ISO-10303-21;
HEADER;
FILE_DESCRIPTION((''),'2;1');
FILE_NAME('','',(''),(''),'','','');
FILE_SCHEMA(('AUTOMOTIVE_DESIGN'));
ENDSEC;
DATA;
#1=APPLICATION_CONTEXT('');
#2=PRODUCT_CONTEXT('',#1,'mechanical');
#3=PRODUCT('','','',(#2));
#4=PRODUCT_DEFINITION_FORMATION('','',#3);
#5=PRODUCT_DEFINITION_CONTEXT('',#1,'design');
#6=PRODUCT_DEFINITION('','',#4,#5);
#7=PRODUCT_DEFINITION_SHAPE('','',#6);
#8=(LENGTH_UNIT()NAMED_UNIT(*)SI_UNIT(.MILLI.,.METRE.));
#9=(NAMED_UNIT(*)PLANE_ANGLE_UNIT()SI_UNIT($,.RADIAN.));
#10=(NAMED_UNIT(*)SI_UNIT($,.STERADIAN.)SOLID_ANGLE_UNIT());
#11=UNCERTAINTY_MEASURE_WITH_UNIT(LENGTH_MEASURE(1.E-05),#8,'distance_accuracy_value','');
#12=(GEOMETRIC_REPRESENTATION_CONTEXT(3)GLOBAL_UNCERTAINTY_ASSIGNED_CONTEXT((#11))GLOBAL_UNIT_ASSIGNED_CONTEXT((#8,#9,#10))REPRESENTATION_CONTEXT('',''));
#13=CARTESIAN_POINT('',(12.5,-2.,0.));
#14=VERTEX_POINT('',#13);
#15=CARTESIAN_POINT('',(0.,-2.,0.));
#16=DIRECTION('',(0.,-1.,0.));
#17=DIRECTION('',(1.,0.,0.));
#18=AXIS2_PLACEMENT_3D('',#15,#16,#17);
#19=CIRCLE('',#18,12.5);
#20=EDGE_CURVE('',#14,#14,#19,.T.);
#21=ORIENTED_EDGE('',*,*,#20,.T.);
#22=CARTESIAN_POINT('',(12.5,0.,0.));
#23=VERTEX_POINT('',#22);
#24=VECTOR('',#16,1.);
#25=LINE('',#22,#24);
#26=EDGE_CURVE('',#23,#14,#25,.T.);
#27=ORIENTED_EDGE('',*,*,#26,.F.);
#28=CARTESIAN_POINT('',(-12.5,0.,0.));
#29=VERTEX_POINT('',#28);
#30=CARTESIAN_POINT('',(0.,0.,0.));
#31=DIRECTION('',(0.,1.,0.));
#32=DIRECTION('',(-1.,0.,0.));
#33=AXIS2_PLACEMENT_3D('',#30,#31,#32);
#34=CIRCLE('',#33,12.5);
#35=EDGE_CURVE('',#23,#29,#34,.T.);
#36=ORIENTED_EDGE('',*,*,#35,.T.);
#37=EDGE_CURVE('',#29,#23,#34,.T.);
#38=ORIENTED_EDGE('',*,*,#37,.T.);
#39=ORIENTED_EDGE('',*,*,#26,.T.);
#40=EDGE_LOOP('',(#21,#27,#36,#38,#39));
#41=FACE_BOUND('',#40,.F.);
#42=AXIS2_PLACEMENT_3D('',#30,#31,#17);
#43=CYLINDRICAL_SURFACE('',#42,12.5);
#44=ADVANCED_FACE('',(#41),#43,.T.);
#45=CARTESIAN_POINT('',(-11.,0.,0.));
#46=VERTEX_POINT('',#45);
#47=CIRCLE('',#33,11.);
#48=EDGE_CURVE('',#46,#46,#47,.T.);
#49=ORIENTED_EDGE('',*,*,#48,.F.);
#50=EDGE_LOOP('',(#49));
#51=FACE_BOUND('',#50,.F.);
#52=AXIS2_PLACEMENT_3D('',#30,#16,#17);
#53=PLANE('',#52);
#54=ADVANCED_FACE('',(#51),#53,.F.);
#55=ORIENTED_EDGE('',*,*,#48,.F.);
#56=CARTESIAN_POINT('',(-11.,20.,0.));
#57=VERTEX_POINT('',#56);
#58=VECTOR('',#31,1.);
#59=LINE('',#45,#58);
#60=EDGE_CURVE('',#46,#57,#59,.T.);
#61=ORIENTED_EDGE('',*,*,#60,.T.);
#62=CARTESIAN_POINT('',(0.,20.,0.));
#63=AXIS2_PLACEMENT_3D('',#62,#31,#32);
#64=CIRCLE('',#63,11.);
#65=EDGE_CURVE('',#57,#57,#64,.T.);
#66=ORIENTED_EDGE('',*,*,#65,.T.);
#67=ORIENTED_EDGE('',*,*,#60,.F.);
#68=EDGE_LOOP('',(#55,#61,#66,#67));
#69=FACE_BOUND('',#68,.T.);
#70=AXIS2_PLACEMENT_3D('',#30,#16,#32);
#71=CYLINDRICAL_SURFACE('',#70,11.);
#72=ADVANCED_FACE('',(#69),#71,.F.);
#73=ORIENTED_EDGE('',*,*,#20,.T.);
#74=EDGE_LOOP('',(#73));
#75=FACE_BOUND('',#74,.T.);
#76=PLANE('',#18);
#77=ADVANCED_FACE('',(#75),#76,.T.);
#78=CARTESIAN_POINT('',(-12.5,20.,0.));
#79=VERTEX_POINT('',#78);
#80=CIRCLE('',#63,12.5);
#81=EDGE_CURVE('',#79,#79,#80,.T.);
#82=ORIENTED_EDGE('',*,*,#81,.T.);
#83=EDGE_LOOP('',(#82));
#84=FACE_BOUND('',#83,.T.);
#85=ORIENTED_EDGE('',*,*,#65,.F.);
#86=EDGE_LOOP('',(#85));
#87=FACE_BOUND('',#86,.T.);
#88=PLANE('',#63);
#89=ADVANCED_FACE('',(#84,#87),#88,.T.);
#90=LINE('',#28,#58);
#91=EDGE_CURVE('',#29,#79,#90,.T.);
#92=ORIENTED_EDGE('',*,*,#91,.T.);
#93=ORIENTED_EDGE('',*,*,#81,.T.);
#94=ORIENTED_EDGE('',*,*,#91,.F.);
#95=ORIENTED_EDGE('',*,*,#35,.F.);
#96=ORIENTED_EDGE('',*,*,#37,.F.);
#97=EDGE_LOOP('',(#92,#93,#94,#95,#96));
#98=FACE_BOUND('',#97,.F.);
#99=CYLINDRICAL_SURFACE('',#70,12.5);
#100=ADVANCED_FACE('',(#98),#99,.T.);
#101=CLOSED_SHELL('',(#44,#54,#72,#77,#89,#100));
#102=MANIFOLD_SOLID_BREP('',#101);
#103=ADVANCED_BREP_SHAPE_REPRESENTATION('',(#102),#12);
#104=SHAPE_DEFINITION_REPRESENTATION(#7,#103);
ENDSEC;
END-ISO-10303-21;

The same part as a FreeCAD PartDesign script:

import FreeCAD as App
import Part
import Sketcher
from FreeCAD import Vector
Q = App.Units.Quantity

doc = App.newDocument("Part")
body = doc.addObject("PartDesign::Body", "Body")

# Sketch on XZ plane
sketch1 = body.newObject("Sketcher::SketchObject", "Sketch")
sketch1.AttachmentSupport = (doc.getObject("XZ_Plane"), [""])
sketch1.MapMode = "FlatFace"
sketch1.addGeometry(Part.Circle(Vector(0, 0, 0), Vector(0, 0, 1), 12), False)
sketch1.addGeometry(Part.Circle(Vector(0, 0, 0), Vector(0, 0, 1), 11), False)
sketch1.addConstraint(Sketcher.Constraint("Coincident", 0, 3, -1, 1))
sketch1.addConstraint(Sketcher.Constraint("Coincident", 1, 3, -1, 1))
sketch1.addConstraint(Sketcher.Constraint("Diameter", 0, Q("25 mm")))
sketch1.addConstraint(Sketcher.Constraint("Diameter", 1, Q("22 mm")))
pad1 = body.newObject("PartDesign::Pad", "Pad")
pad1.Profile = sketch1
pad1.Length = 20
pad1.Reversed = True

# Sketch on XZ plane
sketch2 = body.newObject("Sketcher::SketchObject", "Sketch001")
sketch2.AttachmentSupport = (doc.getObject("XZ_Plane"), [""])
sketch2.MapMode = "FlatFace"
sketch2.addGeometry(Part.Circle(Vector(0, 0, 0), Vector(0, 0, 1), 12), False)
sketch2.addConstraint(Sketcher.Constraint("Coincident", 0, 3, -1, 1))
sketch2.addConstraint(Sketcher.Constraint("Diameter", 0, Q("25 mm")))
pad2 = body.newObject("PartDesign::Pad", "Pad001")
pad2.Profile = sketch2
pad2.Length = 2

doc.recompute()
